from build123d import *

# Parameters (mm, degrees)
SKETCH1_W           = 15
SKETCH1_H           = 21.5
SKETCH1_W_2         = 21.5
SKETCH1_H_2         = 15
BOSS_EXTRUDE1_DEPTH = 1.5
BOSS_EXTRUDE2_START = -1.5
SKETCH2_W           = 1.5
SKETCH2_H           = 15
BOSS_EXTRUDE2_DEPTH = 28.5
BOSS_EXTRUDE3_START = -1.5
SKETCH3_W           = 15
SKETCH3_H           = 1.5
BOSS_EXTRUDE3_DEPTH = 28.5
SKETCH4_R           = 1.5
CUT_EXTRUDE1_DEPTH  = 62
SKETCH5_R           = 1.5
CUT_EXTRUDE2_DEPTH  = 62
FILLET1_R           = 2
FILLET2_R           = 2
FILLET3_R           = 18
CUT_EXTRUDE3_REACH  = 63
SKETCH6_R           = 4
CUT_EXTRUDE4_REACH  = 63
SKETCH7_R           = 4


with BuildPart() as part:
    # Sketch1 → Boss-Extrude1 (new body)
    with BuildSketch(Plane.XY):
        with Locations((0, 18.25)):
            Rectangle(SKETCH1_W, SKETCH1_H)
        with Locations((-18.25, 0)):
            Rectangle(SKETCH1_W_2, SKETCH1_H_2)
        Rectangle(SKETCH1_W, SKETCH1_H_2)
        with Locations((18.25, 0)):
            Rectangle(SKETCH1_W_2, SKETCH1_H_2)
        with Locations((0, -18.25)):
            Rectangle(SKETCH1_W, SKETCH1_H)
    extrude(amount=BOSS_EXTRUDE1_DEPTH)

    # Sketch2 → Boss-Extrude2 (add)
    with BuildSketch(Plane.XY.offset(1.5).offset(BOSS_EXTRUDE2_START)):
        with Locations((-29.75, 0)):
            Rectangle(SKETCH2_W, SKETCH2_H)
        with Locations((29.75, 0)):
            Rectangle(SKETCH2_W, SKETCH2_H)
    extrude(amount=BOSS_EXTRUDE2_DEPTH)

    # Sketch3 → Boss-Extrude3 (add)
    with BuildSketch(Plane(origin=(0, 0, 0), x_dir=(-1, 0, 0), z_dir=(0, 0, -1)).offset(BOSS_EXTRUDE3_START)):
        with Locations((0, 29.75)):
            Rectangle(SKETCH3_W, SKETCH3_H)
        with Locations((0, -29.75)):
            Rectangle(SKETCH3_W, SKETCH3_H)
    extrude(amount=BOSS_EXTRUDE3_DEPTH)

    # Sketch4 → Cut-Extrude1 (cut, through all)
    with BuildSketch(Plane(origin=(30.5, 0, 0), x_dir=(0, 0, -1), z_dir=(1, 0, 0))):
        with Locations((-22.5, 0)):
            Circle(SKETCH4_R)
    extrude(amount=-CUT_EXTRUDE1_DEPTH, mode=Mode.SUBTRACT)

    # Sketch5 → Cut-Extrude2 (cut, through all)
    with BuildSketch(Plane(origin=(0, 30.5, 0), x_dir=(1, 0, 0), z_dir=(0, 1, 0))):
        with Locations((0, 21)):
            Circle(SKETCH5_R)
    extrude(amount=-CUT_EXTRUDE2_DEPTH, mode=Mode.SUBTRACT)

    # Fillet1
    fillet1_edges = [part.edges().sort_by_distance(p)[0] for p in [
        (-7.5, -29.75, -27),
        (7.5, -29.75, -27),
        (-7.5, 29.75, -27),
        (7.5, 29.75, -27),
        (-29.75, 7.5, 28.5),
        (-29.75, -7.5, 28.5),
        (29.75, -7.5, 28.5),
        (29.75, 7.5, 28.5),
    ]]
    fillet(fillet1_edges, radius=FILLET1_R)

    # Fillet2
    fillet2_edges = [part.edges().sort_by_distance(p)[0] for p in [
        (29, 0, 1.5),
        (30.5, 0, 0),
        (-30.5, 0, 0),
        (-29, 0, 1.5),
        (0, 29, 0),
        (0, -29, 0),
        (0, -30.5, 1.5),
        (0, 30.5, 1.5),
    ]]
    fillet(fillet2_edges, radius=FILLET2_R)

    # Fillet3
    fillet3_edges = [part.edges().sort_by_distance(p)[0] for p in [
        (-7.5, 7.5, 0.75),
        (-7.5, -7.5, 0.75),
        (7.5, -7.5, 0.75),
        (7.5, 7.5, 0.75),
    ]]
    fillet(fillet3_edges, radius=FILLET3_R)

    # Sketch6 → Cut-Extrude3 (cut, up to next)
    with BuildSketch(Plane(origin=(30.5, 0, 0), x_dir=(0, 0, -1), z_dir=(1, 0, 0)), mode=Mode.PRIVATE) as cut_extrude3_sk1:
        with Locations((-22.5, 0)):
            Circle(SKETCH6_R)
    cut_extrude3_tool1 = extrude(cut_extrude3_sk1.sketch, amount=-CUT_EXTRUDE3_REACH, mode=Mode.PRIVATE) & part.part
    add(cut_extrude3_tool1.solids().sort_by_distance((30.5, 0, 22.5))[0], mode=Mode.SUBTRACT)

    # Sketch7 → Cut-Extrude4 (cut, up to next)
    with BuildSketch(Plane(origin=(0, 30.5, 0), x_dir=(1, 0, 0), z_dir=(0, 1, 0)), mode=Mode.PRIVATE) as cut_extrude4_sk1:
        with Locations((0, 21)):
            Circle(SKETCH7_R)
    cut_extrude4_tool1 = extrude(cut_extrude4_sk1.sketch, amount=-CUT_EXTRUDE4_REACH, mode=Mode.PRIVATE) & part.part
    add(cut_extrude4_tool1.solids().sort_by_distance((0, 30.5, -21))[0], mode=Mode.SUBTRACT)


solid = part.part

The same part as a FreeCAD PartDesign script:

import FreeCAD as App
import Part
import Sketcher
from FreeCAD import Vector


def edges_at(feature, points):
    """Names of the edges that pass closest to the given points."""
    edges = feature.Shape.Edges
    near = lambda p: min(range(len(edges)), key=lambda i: edges[i].distToShape(Part.Vertex(*p))[0])
    return sorted({f"Edge{near(p) + 1}" for p in points})


def add_polygon(sketch, points):
    """Adds a closed chain of lines whose ends are joined by coincident constraints."""
    first, n = sketch.GeometryCount, len(points)
    for a, b in zip(points, points[1:] + points[:1]):
        sketch.addGeometry(Part.LineSegment(App.Vector(*a, 0), App.Vector(*b, 0)), False)
    for i in range(n):
        sketch.addConstraint(Sketcher.Constraint("Coincident", first + i, 2, first + (i + 1) % n, 1))

doc = App.newDocument("Part")
body = doc.addObject("PartDesign::Body", "Body")

# Sketch on XY plane
sketch1 = body.newObject("Sketcher::SketchObject", "Sketch")
sketch1.AttachmentSupport = (doc.getObject("XY_Plane"), [""])
sketch1.MapMode = "FlatFace"
add_polygon(sketch1, [(-8, 29), (-8, 8), (-29, 8), (-29, -8), (-8, -8), (-8, -29), (8, -29), (8, -8), (29, -8), (29, 8), (8, 8), (8, 29)])  # lines 0-11
sketch1.addConstraint(Sketcher.Constraint("Vertical", 0))
sketch1.addConstraint(Sketcher.Constraint("Horizontal", 1))
sketch1.addConstraint(Sketcher.Constraint("Vertical", 2))
sketch1.addConstraint(Sketcher.Constraint("Horizontal", 3))
sketch1.addConstraint(Sketcher.Constraint("Vertical", 4))
sketch1.addConstraint(Sketcher.Constraint("Horizontal", 5))
sketch1.addConstraint(Sketcher.Constraint("Vertical", 6))
sketch1.addConstraint(Sketcher.Constraint("Horizontal", 7))
sketch1.addConstraint(Sketcher.Constraint("Vertical", 8))
sketch1.addConstraint(Sketcher.Constraint("Horizontal", 9))
sketch1.addConstraint(Sketcher.Constraint("Vertical", 10))
sketch1.addConstraint(Sketcher.Constraint("Horizontal", 11))
sketch1.addConstraint(Sketcher.Constraint("Symmetric", 0, 2, 6, 2, -1, 1))
sketch1.addConstraint(Sketcher.Constraint("Symmetric", 2, 2, 8, 2, -1, 1))
sketch1.addConstraint(Sketcher.Constraint("Symmetric", 4, 2, 10, 2, -1, 1))
sketch1.addConstraint(Sketcher.Constraint("Symmetric", 3, 2, 6, 2, -2))
sketch1.addConstraint(Sketcher.Constraint("Equal", 9, 0))
sketch1.addConstraint(Sketcher.Constraint("Equal", 11, 2))
sketch1.addConstraint(Sketcher.Constraint("DistanceX", 5, 1, 5, 2, 15.0))
sketch1.addConstraint(Sketcher.Constraint("DistanceX", 1, 2, 1, 1, 21.5))
pad1 = body.newObject("PartDesign::Pad", "Pad")
pad1.Profile = sketch1
pad1.Length = 1.5

# Sketch on XY plane
sketch2 = body.newObject("Sketcher::SketchObject", "Sketch001")
sketch2.AttachmentSupport = (doc.getObject("XY_Plane"), [""])
sketch2.MapMode = "FlatFace"
add_polygon(sketch2, [(-30.5, 7.5), (-30.5, -7.5), (-29, -7.5), (-29, 7.5)])  # lines 0-3
add_polygon(sketch2, [(29, 7.5), (29, -7.5), (30.5, -7.5), (30.5, 7.5)])  # lines 4-7
sketch2.addConstraint(Sketcher.Constraint("Vertical", 0))
sketch2.addConstraint(Sketcher.Constraint("Horizontal", 1))
sketch2.addConstraint(Sketcher.Constraint("Vertical", 2))
sketch2.addConstraint(Sketcher.Constraint("Horizontal", 3))
sketch2.addConstraint(Sketcher.Constraint("Vertical", 4))
sketch2.addConstraint(Sketcher.Constraint("Horizontal", 5))
sketch2.addConstraint(Sketcher.Constraint("Vertical", 6))
sketch2.addConstraint(Sketcher.Constraint("Horizontal", 7))
sketch2.addConstraint(Sketcher.Constraint("Symmetric", 2, 2, 4, 2, -1, 1))
sketch2.addConstraint(Sketcher.Constraint("Symmetric", 0, 2, 6, 2, -1, 1))
sketch2.addConstraint(Sketcher.Constraint("Horizontal", 1, 2, 4, 2))
sketch2.addConstraint(Sketcher.Constraint("DistanceY", 0, 2, 0, 1, 15.0))
sketch2.addConstraint(Sketcher.Constraint("DistanceX", 1, 1, 1, 2, 1.5))
sketch2.addConstraint(Sketcher.Constraint("DistanceX", 1, 2, -1, 1, 29.0))
pad2 = body.newObject("PartDesign::Pad", "Pad001")
pad2.Profile = sketch2
pad2.Length = 28.5

# Sketch on XY plane
sketch3 = body.newObject("Sketcher::SketchObject", "Sketch002")
sketch3.AttachmentSupport = (doc.getObject("XY_Plane"), [""])
sketch3.MapMode = "FlatFace"
sketch3.AttachmentOffset = App.Placement(Vector(0, 0, 1.5), App.Rotation())
add_polygon(sketch3, [(7.5, 30.5), (7.5, 29), (-7.5, 29), (-7.5, 30.5)])  # lines 0-3
add_polygon(sketch3, [(7.5, -29), (7.5, -30.5), (-7.5, -30.5), (-7.5, -29)])  # lines 4-7
sketch3.addConstraint(Sketcher.Constraint("Vertical", 0))
sketch3.addConstraint(Sketcher.Constraint("Horizontal", 1))
sketch3.addConstraint(Sketcher.Constraint("Vertical", 2))
sketch3.addConstraint(Sketcher.Constraint("Horizontal", 3))
sketch3.addConstraint(Sketcher.Constraint("Vertical", 4))
sketch3.addConstraint(Sketcher.Constraint("Horizontal", 5))
sketch3.addConstraint(Sketcher.Constraint("Vertical", 6))
sketch3.addConstraint(Sketcher.Constraint("Horizontal", 7))
sketch3.addConstraint(Sketcher.Constraint("Symmetric", 2, 2, 4, 2, -1, 1))
sketch3.addConstraint(Sketcher.Constraint("Symmetric", 0, 2, 6, 2, -1, 1))
sketch3.addConstraint(Sketcher.Constraint("Vertical", 3, 2, 4, 2))
sketch3.addConstraint(Sketcher.Constraint("DistanceX", 1, 2, 1, 1, 15.0))
sketch3.addConstraint(Sketcher.Constraint("DistanceY", 0, 2, 0, 1, 1.5))
sketch3.addConstraint(Sketcher.Constraint("DistanceY", -1, 1, 0, 2, 29.0))
pad3 = body.newObject("PartDesign::Pad", "Pad002")
pad3.Profile = sketch3
pad3.Length = 28.5
pad3.Reversed = True

# Sketch on YZ plane
sketch4 = body.newObject("Sketcher::SketchObject", "Sketch003")
sketch4.AttachmentSupport = (doc.getObject("YZ_Plane"), [""])
sketch4.MapMode = "FlatFace"
sketch4.AttachmentOffset = App.Placement(Vector(0, 0, 30.5), App.Rotation())
sketch4.addGeometry(Part.Circle(Vector(0, 22.5, 0), Vector(0, 0, 1), 1.5), False)
sketch4.addConstraint(Sketcher.Constraint("PointOnObject", 0, 3, -2))
sketch4.addConstraint(Sketcher.Constraint("Diameter", 0, 3.0))
sketch4.addConstraint(Sketcher.Constraint("DistanceY", -1, 1, 0, 3, 22.5))
pocket1 = body.newObject("PartDesign::Pocket", "Pocket")
pocket1.Profile = sketch4
pocket1.Type = "ThroughAll"

# Sketch on XZ plane
sketch5 = body.newObject("Sketcher::SketchObject", "Sketch004")
sketch5.AttachmentSupport = (doc.getObject("XZ_Plane"), [""])
sketch5.MapMode = "FlatFace"
sketch5.AttachmentOffset = App.Placement(Vector(0, 0, -30.5), App.Rotation())
sketch5.addGeometry(Part.Circle(Vector(0, -21, 0), Vector(0, 0, 1), 1.5), False)
sketch5.addConstraint(Sketcher.Constraint("PointOnObject", 0, 3, -2))
sketch5.addConstraint(Sketcher.Constraint("Diameter", 0, 3.0))
sketch5.addConstraint(Sketcher.Constraint("DistanceY", 0, 3, -1, 1, 21.0))
pocket2 = body.newObject("PartDesign::Pocket", "Pocket001")
pocket2.Profile = sketch5
pocket2.Type = "ThroughAll"
pocket2.Reversed = True
doc.recompute()

fillet = body.newObject("PartDesign::Fillet", "Fillet")
fillet.Base = (pocket2, edges_at(pocket2, [
    (-7.5, -29.75, -27),
    (7.5, -29.75, -27),
    (-7.5, 29.75, -27),
    (7.5, 29.75, -27),
    (-29.75, 7.5, 28.5),
    (-29.75, -7.5, 28.5),
    (29.75, -7.5, 28.5),
    (29.75, 7.5, 28.5),
]))
fillet.Radius = 2
doc.recompute()

fillet2 = body.newObject("PartDesign::Fillet", "Fillet001")
fillet2.Base = (fillet, edges_at(fillet, [
    (29, 0, 1.5),
    (30.5, 0, 0),
    (-30.5, 0, 0),
    (-29, 0, 1.5),
    (0, 29, 0),
    (0, -29, 0),
    (0, -30.5, 1.5),
    (0, 30.5, 1.5),
]))
fillet2.Radius = 2
doc.recompute()

fillet3 = body.newObject("PartDesign::Fillet", "Fillet002")
fillet3.Base = (fillet2, edges_at(fillet2, [
    (-7.5, 7.5, 0.75),
    (-7.5, -7.5, 0.75),
    (7.5, -7.5, 0.75),
    (7.5, 7.5, 0.75),
]))
fillet3.Radius = 18

# Sketch on YZ plane
sketch6 = body.newObject("Sketcher::SketchObject", "Sketch005")
sketch6.AttachmentSupport = (doc.getObject("YZ_Plane"), [""])
sketch6.MapMode = "FlatFace"
sketch6.AttachmentOffset = App.Placement(Vector(0, 0, 30.5), App.Rotation())
sketch6.addGeometry(Part.Circle(Vector(0, 22.5, 0), Vector(0, 0, 1), 4), False)
sketch6.addConstraint(Sketcher.Constraint("PointOnObject", 0, 3, -2))
sketch6.addConstraint(Sketcher.Constraint("Diameter", 0, 8.0))
sketch6.addConstraint(Sketcher.Constraint("DistanceY", -1, 1, 0, 3, 22.5))
pocket3 = body.newObject("PartDesign::Pocket", "Pocket002")
pocket3.Profile = sketch6
pocket3.Length = 1.5

# Sketch on XZ plane
sketch7 = body.newObject("Sketcher::SketchObject", "Sketch006")
sketch7.AttachmentSupport = (doc.getObject("XZ_Plane"), [""])
sketch7.MapMode = "FlatFace"
sketch7.AttachmentOffset = App.Placement(Vector(0, 0, -30.5), App.Rotation())
sketch7.addGeometry(Part.Circle(Vector(0, -21, 0), Vector(0, 0, 1), 4), False)
sketch7.addConstraint(Sketcher.Constraint("PointOnObject", 0, 3, -2))
sketch7.addConstraint(Sketcher.Constraint("Diameter", 0, 8.0))
sketch7.addConstraint(Sketcher.Constraint("DistanceY", 0, 3, -1, 1, 21.0))
pocket4 = body.newObject("PartDesign::Pocket", "Pocket003")
pocket4.Profile = sketch7
pocket4.Length = 1.5
pocket4.Reversed = True

doc.recompute()
